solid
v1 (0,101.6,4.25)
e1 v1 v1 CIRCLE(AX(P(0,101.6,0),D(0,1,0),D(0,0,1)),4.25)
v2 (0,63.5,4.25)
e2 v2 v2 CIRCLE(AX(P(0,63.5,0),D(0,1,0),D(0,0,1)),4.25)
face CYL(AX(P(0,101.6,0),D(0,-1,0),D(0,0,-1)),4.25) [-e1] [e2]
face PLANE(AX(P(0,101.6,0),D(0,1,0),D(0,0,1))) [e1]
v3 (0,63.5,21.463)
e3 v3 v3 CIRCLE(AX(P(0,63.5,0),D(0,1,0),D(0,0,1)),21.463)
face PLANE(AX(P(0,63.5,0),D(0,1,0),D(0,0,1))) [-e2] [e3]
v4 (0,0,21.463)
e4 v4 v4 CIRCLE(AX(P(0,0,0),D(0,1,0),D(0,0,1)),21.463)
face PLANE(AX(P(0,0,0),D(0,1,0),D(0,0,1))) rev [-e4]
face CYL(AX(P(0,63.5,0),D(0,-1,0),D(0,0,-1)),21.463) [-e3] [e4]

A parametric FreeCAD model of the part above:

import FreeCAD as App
import Part
import Sketcher

V = App.Vector
Q = App.Units.Quantity

doc = App.newDocument("Part")
params = doc.addObject("Spreadsheet::Sheet", "Params")
for row, (alias, value) in enumerate([
    ("sketch1_diameter", "1.69 in"),
    ("pad1_length", "2.5 in"),
    ("pad2_length", "1.5 in"),
], start=1):
    params.set(f"A{row}", alias)
    params.set(f"B{row}", "=" + value)
    params.setAlias(f"B{row}", alias)

body = doc.addObject("PartDesign::Body", "Body")

# Sketch on XZ plane
sketch1 = doc.addObject("Sketcher::SketchObject", "Sketch")
body.addObject(sketch1)
sketch1.AttachmentSupport = (doc.XZ_Plane, [""])
sketch1.MapMode = "FlatFace"
sketch1.addGeometry(Part.Circle(V(0, 0, 0), V(0, 0, 1), 21), False)
sketch1.addConstraint([
    Sketcher.Constraint("Coincident", 0, 3, -1, 1),
    Sketcher.Constraint("Diameter", 0, Q("1.69 in")),
])
sketch1.setExpression("Constraints[1]", "Params.sketch1_diameter")
pad1 = doc.addObject("PartDesign::Pad", "Pad")
body.addObject(pad1)
pad1.Profile = sketch1
pad1.setExpression("Length", "Params.pad1_length")
pad1.Reversed = True

# Sketch on XZ plane
sketch2 = doc.addObject("Sketcher::SketchObject", "Sketch001")
body.addObject(sketch2)
sketch2.AttachmentSupport = (doc.XZ_Plane, [""])
sketch2.MapMode = "FlatFace"
sketch2.AttachmentOffset = App.Placement(V(0, 0, -2.5 * 25.4), App.Rotation())
sketch2.addGeometry(Part.Circle(V(0, 0, 0), V(0, 0, 1), 4.2), False)
sketch2.addConstraint([
    Sketcher.Constraint("Coincident", 0, 3, -1, 1),
    Sketcher.Constraint("Diameter", 0, 8.5),
])
pad2 = doc.addObject("PartDesign::Pad", "Pad001")
body.addObject(pad2)
pad2.Profile = sketch2
pad2.setExpression("Length", "Params.pad2_length")
pad2.Reversed = True

doc.recompute()
